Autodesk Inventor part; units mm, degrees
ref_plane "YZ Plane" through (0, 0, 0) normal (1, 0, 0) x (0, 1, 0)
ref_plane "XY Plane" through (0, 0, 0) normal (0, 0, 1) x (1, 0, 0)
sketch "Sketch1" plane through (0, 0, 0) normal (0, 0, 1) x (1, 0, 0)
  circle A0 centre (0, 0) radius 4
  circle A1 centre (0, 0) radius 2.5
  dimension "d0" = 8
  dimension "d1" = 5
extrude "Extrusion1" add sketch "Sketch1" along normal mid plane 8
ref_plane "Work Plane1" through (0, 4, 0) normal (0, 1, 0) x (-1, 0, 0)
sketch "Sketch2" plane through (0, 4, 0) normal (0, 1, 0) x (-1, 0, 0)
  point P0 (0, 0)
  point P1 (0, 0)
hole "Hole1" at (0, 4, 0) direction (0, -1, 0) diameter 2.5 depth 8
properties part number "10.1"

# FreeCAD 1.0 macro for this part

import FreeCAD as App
import Part
import Sketcher
Q = App.Units.Quantity

doc = App.newDocument("Part")
body = doc.addObject("PartDesign::Body", "Body")

# Sketch on XY plane
sketch1 = body.newObject("Sketcher::SketchObject", "Sketch")
sketch1.AttachmentSupport = (doc.getObject("XY_Plane"), [""])
sketch1.MapMode = "FlatFace"
sketch1.addGeometry([
    Part.Circle(App.Vector(0, 0, 0), App.Vector(0, 0, 1), 4),
    Part.Circle(App.Vector(0, 0, 0), App.Vector(0, 0, 1), 2.5),
], False)
sketch1.addConstraint([
    Sketcher.Constraint("Coincident", 0, 3, -1, 1),
    Sketcher.Constraint("Coincident", 1, 3, -1, 1),
    Sketcher.Constraint("Diameter", 0, Q("8 mm")),
    Sketcher.Constraint("Diameter", 1, Q("5 mm")),
])
pad1 = body.newObject("PartDesign::Pad", "Pad")
pad1.Profile = sketch1
pad1.Length = 8
pad1.Midplane = True

# Sketch on XZ plane
sketch2 = body.newObject("Sketcher::SketchObject", "Sketch001")
sketch2.AttachmentSupport = (doc.getObject("XZ_Plane"), [""])
sketch2.MapMode = "FlatFace"
sketch2.AttachmentOffset = App.Placement(App.Vector(0, 0, -4), App.Rotation())
sketch2.addGeometry(Part.Circle(App.Vector(0, 0, 0), App.Vector(0, 0, 1), 1.25), False)
sketch2.addConstraint([
    Sketcher.Constraint("Coincident", 0, 3, -1, 1),
    Sketcher.Constraint("Diameter", 0, Q("2.5 mm")),
])
doc.recompute()
hole = body.newObject("PartDesign::Hole", "Hole")
hole.Profile = sketch2
hole.ThreadType = "None"
hole.Diameter = 2.5
hole.DepthType = "Dimension"
hole.Depth = 8
hole.DrillPoint = "Flat"
hole.Reversed = True

doc.recompute()
